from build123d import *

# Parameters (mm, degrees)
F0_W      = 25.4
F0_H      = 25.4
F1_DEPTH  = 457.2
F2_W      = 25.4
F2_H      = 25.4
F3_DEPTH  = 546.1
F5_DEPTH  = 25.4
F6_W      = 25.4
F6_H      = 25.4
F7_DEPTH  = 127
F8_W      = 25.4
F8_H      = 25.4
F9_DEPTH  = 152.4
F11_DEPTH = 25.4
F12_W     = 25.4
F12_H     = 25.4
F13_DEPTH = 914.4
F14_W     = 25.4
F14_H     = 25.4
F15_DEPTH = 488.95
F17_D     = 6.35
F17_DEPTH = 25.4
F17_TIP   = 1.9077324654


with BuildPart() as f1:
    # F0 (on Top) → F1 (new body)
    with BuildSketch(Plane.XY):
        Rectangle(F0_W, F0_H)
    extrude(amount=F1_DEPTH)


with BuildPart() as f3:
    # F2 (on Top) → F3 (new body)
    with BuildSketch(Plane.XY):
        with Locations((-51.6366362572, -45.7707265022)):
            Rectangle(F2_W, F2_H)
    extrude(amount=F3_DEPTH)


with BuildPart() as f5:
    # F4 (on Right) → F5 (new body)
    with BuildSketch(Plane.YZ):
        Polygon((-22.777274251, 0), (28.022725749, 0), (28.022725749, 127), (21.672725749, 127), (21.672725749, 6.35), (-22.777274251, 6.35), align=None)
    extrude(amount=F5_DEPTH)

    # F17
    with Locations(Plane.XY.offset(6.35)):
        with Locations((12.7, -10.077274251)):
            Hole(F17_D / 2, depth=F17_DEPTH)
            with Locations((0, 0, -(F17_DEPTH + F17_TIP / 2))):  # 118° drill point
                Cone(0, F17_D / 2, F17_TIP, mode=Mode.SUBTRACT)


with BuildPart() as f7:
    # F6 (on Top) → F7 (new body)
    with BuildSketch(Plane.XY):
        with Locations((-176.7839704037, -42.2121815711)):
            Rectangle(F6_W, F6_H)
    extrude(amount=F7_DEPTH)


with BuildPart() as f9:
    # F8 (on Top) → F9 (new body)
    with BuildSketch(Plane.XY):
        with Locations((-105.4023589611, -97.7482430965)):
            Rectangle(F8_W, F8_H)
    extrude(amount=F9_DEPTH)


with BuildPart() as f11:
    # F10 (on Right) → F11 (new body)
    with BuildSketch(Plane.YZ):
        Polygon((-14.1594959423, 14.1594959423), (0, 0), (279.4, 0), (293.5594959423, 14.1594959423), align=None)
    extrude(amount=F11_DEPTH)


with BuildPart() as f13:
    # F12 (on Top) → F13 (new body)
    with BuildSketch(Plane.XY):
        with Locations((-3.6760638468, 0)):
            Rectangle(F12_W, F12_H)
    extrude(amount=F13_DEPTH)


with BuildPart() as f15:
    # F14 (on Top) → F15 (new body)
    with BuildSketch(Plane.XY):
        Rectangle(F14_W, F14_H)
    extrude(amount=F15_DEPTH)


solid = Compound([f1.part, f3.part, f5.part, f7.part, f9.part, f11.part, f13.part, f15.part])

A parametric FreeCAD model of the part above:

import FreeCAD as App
import Part
import Sketcher
Q = App.Units.Quantity


def add_polygon(sketch, points):
    """Adds a closed chain of lines whose ends are joined by coincident constraints."""
    first, n = sketch.GeometryCount, len(points)
    for a, b in zip(points, points[1:] + points[:1]):
        sketch.addGeometry(Part.LineSegment(App.Vector(*a, 0), App.Vector(*b, 0)), False)
    for i in range(n):
        sketch.addConstraint(Sketcher.Constraint("Coincident", first + i, 2, first + (i + 1) % n, 1))

doc = App.newDocument("Part")
params = doc.addObject("Spreadsheet::Sheet", "Params")
for row, (alias, value) in enumerate([
    ("sketch1_width", "1 in"),
    ("pad1_length", "18 in"),
    ("sketch2_width", "1 in"),
    ("pad2_length", "21.5 in"),
    ("sketch3_width", "2 in"),
    ("sketch3_height", "5 in"),
    ("sketch3_width2", "0.25 in"),
    ("pad3_length", "1 in"),
    ("sketch4_diameter", "0.25 in"),
    ("hole_diameter", "0.25 in"),
    ("hole_depth", "1 in"),
    ("sketch5_width", "1 in"),
    ("pad4_length", "5 in"),
    ("sketch6_width", "1 in"),
    ("pad5_length", "6 in"),
    ("sketch7_width", "11 in"),
    ("pad6_length", "1 in"),
    ("sketch8_width", "1 in"),
    ("pad7_length", "36 in"),
    ("sketch9_width", "1 in"),
    ("pad8_length", "19.25 in"),
], start=1):
    params.set(f"A{row}", alias)
    params.set(f"B{row}", "=" + value)
    params.setAlias(f"B{row}", alias)

body = doc.addObject("PartDesign::Body", "Body")

# Sketch on XY plane
sketch1 = body.newObject("Sketcher::SketchObject", "Sketch")
sketch1.AttachmentSupport = (doc.getObject("XY_Plane"), [""])
sketch1.MapMode = "FlatFace"
add_polygon(sketch1, [(-13, 13), (-13, -13), (13, -13), (13, 13)])  # lines 0-3
sketch1.addConstraint([
    Sketcher.Constraint("Vertical", 0),
    Sketcher.Constraint("Horizontal", 1),
    Sketcher.Constraint("Vertical", 2),
    Sketcher.Constraint("Horizontal", 3),
    Sketcher.Constraint("Symmetric", 0, 2, 2, 2, -1, 1),
    Sketcher.Constraint("Equal", 3, 0),
    Sketcher.Constraint("DistanceX", 1, 1, 1, 2, Q("1 in")),
])
sketch1.setExpression("Constraints[10]", "Params.sketch1_width")
pad1 = body.newObject("PartDesign::Pad", "Pad")
pad1.Profile = sketch1
pad1.setExpression("Length", "Params.pad1_length")
body2 = doc.addObject("PartDesign::Body", "Body001")

# Sketch on XY plane
sketch2 = body2.newObject("Sketcher::SketchObject", "Sketch001")
sketch2.AttachmentSupport = (doc.getObject("XY_Plane001"), [""])
sketch2.MapMode = "FlatFace"
add_polygon(sketch2, [(-64, -33), (-64, -58), (-39, -58), (-39, -33)])  # lines 0-3
sketch2.addConstraint([
    Sketcher.Constraint("Vertical", 0),
    Sketcher.Constraint("Horizontal", 1),
    Sketcher.Constraint("Vertical", 2),
    Sketcher.Constraint("Horizontal", 3),
    Sketcher.Constraint("Equal", 3, 0),
    Sketcher.Constraint("DistanceX", 1, 1, 1, 2, Q("1 in")),
    Sketcher.Constraint("DistanceX", 0, 2, -1, 1, Q("64.336636 mm")),
    Sketcher.Constraint("DistanceY", 0, 2, -1, 1, Q("58.470727 mm")),
])
sketch2.setExpression("Constraints[9]", "Params.sketch2_width")
pad2 = body2.newObject("PartDesign::Pad", "Pad001")
pad2.Profile = sketch2
pad2.setExpression("Length", "Params.pad2_length")
body3 = doc.addObject("PartDesign::Body", "Body002")

# Sketch on YZ plane
sketch3 = body3.newObject("Sketcher::SketchObject", "Sketch002")
sketch3.AttachmentSupport = (doc.getObject("YZ_Plane002"), [""])
sketch3.MapMode = "FlatFace"
add_polygon(sketch3, [(-23, 0), (28, 0), (28, 127), (22, 127), (22, 6), (-23, 6)])  # lines 0-5
sketch3.addConstraint([
    Sketcher.Constraint("Horizontal", 0),
    Sketcher.Constraint("Vertical", 1),
    Sketcher.Constraint("Horizontal", 2),
    Sketcher.Constraint("Vertical", 3),
    Sketcher.Constraint("Horizontal", 4),
    Sketcher.Constraint("Vertical", 5),
    Sketcher.Constraint("PointOnObject", 0, 2, -1),
    Sketcher.Constraint("Equal", 2, 5),
    Sketcher.Constraint("DistanceX", 0, 1, 0, 2, Q("2 in")),
    Sketcher.Constraint("DistanceY", 1, 1, 1, 2, Q("5 in")),
    Sketcher.Constraint("DistanceX", 2, 2, 2, 1, Q("0.25 in")),
    Sketcher.Constraint("DistanceX", -1, 1, 0, 2, Q("28.022726 mm")),
])
sketch3.setExpression("Constraints[14]", "Params.sketch3_width")
sketch3.setExpression("Constraints[15]", "Params.sketch3_height")
sketch3.setExpression("Constraints[16]", "Params.sketch3_width2")
pad3 = body3.newObject("PartDesign::Pad", "Pad002")
pad3.Profile = sketch3
pad3.setExpression("Length", "Params.pad3_length")

# Sketch on XY plane
sketch4 = body3.newObject("Sketcher::SketchObject", "Sketch003")
sketch4.AttachmentSupport = (doc.getObject("XY_Plane002"), [""])
sketch4.MapMode = "FlatFace"
sketch4.AttachmentOffset = App.Placement(App.Vector(0, 0, 0.25 * 25.4), App.Rotation())
sketch4.addGeometry(Part.Circle(App.Vector(12.7, -10.1, 0), App.Vector(0, 0, 1), 3.2), False)
sketch4.addConstraint([
    Sketcher.Constraint("Diameter", 0, Q("0.25 in")),
    Sketcher.Constraint("DistanceX", -1, 1, 0, 3, Q("0.5 in")),
    Sketcher.Constraint("DistanceY", 0, 3, -1, 1, Q("10.077274 mm")),
])
sketch4.setExpression("Constraints[0]", "Params.sketch4_diameter")
doc.recompute()
hole = body3.newObject("PartDesign::Hole", "Hole")
hole.Profile = sketch4
hole.ThreadType = "None"
hole.setExpression("Diameter", "Params.hole_diameter")
hole.DepthType = "Dimension"
hole.setExpression("Depth", "Params.hole_depth")
hole.DrillPoint = "Angled"
hole.DrillPointAngle = 118
body4 = doc.addObject("PartDesign::Body", "Body003")

# Sketch on XY plane
sketch5 = body4.newObject("Sketcher::SketchObject", "Sketch004")
sketch5.AttachmentSupport = (doc.getObject("XY_Plane003"), [""])
sketch5.MapMode = "FlatFace"
add_polygon(sketch5, [(-189, -30), (-189, -55), (-164, -55), (-164, -30)])  # lines 0-3
sketch5.addConstraint([
    Sketcher.Constraint("Vertical", 0),
    Sketcher.Constraint("Horizontal", 1),
    Sketcher.Constraint("Vertical", 2),
    Sketcher.Constraint("Horizontal", 3),
    Sketcher.Constraint("Equal", 3, 0),
    Sketcher.Constraint("DistanceX", 1, 1, 1, 2, Q("1 in")),
    Sketcher.Constraint("DistanceX", 0, 2, -1, 1, Q("189.48397 mm")),
    Sketcher.Constraint("DistanceY", 0, 2, -1, 1, Q("54.912182 mm")),
])
sketch5.setExpression("Constraints[9]", "Params.sketch5_width")
pad4 = body4.newObject("PartDesign::Pad", "Pad003")
pad4.Profile = sketch5
pad4.setExpression("Length", "Params.pad4_length")
body5 = doc.addObject("PartDesign::Body", "Body004")

# Sketch on XY plane
sketch6 = body5.newObject("Sketcher::SketchObject", "Sketch005")
sketch6.AttachmentSupport = (doc.getObject("XY_Plane004"), [""])
sketch6.MapMode = "FlatFace"
add_polygon(sketch6, [(-118, -85), (-118, -110), (-93, -110), (-93, -85)])  # lines 0-3
sketch6.addConstraint([
    Sketcher.Constraint("Vertical", 0),
    Sketcher.Constraint("Horizontal", 1),
    Sketcher.Constraint("Vertical", 2),
    Sketcher.Constraint("Horizontal", 3),
    Sketcher.Constraint("Equal", 3, 0),
    Sketcher.Constraint("DistanceX", 1, 1, 1, 2, Q("1 in")),
    Sketcher.Constraint("DistanceX", 0, 2, -1, 1, Q("118.102359 mm")),
    Sketcher.Constraint("DistanceY", 0, 2, -1, 1, Q("110.448243 mm")),
])
sketch6.setExpression("Constraints[9]", "Params.sketch6_width")
pad5 = body5.newObject("PartDesign::Pad", "Pad004")
pad5.Profile = sketch6
pad5.setExpression("Length", "Params.pad5_length")
body6 = doc.addObject("PartDesign::Body", "Body005")

# Sketch on YZ plane
sketch7 = body6.newObject("Sketcher::SketchObject", "Sketch006")
sketch7.AttachmentSupport = (doc.getObject("YZ_Plane005"), [""])
sketch7.MapMode = "FlatFace"
add_polygon(sketch7, [(-14, 14), (0, 0), (279, 0), (294, 14)])  # lines 0-3
sketch7.addConstraint([
    Sketcher.Constraint("Horizontal", 1),
    Sketcher.Constraint("Horizontal", 3),
    Sketcher.Constraint("Coincident", 0, 2, -1, 1),
    Sketcher.Constraint("Perpendicular", 0, 2),
    Sketcher.Constraint("Equal", 0, 2),
    Sketcher.Constraint("DistanceX", 1, 1, 1, 2, Q("11 in")),
    Sketcher.Constraint("DistanceX", 3, 2, 3, 1, Q("307.718992 mm")),
])
sketch7.setExpression("Constraints[9]", "Params.sketch7_width")
pad6 = body6.newObject("PartDesign::Pad", "Pad005")
pad6.Profile = sketch7
pad6.setExpression("Length", "Params.pad6_length")
body7 = doc.addObject("PartDesign::Body", "Body006")

# Sketch on XY plane
sketch8 = body7.newObject("Sketcher::SketchObject", "Sketch007")
sketch8.AttachmentSupport = (doc.getObject("XY_Plane006"), [""])
sketch8.MapMode = "FlatFace"
add_polygon(sketch8, [(-16, 13), (-16, -13), (9, -13), (9, 13)])  # lines 0-3
sketch8.addConstraint([
    Sketcher.Constraint("Vertical", 0),
    Sketcher.Constraint("Horizontal", 1),
    Sketcher.Constraint("Vertical", 2),
    Sketcher.Constraint("Horizontal", 3),
    Sketcher.Constraint("Equal", 3, 0),
    Sketcher.Constraint("DistanceX", 1, 1, 1, 2, Q("1 in")),
    Sketcher.Constraint("DistanceY", 0, 2, -1, 1, Q("0.5 in")),
    Sketcher.Constraint("DistanceX", 0, 2, -1, 1, Q("16.376064 mm")),
])
sketch8.setExpression("Constraints[9]", "Params.sketch8_width")
pad7 = body7.newObject("PartDesign::Pad", "Pad006")
pad7.Profile = sketch8
pad7.setExpression("Length", "Params.pad7_length")
body8 = doc.addObject("PartDesign::Body", "Body007")

# Sketch on XY plane
sketch9 = body8.newObject("Sketcher::SketchObject", "Sketch008")
sketch9.AttachmentSupport = (doc.getObject("XY_Plane007"), [""])
sketch9.MapMode = "FlatFace"
add_polygon(sketch9, [(-13, 13), (-13, -13), (13, -13), (13, 13)])  # lines 0-3
sketch9.addConstraint([
    Sketcher.Constraint("Vertical", 0),
    Sketcher.Constraint("Horizontal", 1),
    Sketcher.Constraint("Vertical", 2),
    Sketcher.Constraint("Horizontal", 3),
    Sketcher.Constraint("Symmetric", 0, 2, 2, 2, -1, 1),
    Sketcher.Constraint("Equal", 3, 0),
    Sketcher.Constraint("DistanceX", 1, 1, 1, 2, Q("1 in")),
])
sketch9.setExpression("Constraints[10]", "Params.sketch9_width")
pad8 = body8.newObject("PartDesign::Pad", "Pad007")
pad8.Profile = sketch9
pad8.setExpression("Length", "Params.pad8_length")

doc.recompute()
